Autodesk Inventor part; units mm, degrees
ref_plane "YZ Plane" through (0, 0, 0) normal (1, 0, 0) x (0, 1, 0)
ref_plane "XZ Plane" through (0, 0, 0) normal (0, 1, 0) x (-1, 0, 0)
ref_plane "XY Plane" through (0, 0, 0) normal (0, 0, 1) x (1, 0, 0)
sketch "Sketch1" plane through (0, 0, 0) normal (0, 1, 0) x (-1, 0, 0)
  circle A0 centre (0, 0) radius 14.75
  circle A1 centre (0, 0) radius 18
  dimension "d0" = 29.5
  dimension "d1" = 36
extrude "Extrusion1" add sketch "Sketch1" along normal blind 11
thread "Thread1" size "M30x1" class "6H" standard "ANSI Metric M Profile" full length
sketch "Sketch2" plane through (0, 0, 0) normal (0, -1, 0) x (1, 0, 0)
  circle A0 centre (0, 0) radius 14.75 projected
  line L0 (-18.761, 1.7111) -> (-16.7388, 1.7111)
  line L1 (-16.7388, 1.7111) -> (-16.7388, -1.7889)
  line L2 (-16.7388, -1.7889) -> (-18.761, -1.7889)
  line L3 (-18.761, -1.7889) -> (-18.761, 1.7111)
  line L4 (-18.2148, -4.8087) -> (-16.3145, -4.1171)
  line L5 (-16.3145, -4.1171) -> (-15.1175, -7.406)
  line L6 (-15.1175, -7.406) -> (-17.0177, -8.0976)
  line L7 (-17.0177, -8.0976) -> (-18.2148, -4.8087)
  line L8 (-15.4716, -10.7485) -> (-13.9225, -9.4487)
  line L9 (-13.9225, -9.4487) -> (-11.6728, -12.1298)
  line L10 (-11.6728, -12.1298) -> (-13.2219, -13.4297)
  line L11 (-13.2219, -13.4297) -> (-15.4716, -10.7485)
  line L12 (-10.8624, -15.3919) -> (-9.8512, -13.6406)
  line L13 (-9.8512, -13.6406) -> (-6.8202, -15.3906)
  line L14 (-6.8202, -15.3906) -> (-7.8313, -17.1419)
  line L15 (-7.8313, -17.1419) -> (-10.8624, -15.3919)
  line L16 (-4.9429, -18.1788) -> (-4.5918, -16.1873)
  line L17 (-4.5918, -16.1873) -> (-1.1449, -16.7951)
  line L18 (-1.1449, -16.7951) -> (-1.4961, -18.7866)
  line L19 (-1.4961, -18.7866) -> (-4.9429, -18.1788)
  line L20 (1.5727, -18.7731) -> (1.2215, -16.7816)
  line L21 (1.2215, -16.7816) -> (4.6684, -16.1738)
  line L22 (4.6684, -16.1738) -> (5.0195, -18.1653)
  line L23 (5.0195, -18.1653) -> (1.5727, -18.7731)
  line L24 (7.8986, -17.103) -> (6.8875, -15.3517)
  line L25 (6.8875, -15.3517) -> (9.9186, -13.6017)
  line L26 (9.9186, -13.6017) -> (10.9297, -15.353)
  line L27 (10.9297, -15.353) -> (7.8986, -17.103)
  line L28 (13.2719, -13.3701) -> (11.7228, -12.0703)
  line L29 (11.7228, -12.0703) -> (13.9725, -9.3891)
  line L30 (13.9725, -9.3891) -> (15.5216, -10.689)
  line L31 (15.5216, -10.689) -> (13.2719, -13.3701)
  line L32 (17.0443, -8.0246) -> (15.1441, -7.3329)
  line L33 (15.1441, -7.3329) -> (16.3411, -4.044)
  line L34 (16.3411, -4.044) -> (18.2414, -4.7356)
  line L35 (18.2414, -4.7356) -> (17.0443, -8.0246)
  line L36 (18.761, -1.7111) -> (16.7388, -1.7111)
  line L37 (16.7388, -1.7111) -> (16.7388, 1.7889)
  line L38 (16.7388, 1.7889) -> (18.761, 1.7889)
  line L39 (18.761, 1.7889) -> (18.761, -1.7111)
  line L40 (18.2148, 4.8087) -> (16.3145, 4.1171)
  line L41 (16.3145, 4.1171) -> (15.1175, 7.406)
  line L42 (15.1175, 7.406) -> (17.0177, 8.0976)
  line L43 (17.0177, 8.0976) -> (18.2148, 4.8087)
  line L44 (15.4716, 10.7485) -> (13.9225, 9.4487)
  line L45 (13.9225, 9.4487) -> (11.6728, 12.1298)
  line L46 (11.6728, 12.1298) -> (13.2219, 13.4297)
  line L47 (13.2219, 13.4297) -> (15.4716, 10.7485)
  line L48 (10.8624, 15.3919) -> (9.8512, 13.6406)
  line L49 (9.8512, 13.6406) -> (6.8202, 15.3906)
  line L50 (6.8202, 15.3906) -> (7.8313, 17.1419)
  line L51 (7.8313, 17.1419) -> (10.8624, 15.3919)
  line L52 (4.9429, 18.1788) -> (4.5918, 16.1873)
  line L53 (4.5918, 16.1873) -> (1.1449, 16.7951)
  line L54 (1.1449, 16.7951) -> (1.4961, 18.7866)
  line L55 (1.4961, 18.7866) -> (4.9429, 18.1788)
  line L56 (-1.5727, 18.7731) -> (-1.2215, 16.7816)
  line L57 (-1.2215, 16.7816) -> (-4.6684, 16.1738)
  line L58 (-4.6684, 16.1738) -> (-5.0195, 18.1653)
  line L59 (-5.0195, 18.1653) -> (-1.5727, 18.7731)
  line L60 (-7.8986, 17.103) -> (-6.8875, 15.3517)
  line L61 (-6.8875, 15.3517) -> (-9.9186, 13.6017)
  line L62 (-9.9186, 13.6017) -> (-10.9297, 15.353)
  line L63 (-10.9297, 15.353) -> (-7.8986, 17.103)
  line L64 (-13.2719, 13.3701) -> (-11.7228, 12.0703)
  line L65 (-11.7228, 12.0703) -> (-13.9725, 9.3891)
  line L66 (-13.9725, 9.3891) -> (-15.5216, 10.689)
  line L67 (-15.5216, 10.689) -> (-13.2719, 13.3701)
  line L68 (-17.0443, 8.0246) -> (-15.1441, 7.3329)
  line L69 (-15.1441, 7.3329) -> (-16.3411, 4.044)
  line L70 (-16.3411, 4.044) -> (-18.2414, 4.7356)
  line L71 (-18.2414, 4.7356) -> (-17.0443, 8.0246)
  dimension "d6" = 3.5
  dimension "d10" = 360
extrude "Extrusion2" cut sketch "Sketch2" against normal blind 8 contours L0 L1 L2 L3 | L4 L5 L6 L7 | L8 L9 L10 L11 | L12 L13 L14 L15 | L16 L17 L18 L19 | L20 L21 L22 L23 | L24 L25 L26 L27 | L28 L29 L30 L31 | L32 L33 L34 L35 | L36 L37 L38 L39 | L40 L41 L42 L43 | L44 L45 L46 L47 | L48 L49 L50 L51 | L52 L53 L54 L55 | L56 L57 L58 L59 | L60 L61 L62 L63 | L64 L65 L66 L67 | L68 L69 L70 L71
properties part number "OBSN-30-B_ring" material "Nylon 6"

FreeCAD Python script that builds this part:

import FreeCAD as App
import Part
import Sketcher
from FreeCAD import Vector
Q = App.Units.Quantity


def add_polygon(sketch, points):
    """Adds a closed chain of lines whose ends are joined by coincident constraints."""
    first, n = sketch.GeometryCount, len(points)
    for a, b in zip(points, points[1:] + points[:1]):
        sketch.addGeometry(Part.LineSegment(App.Vector(*a, 0), App.Vector(*b, 0)), False)
    for i in range(n):
        sketch.addConstraint(Sketcher.Constraint("Coincident", first + i, 2, first + (i + 1) % n, 1))

doc = App.newDocument("Part")
body = doc.addObject("PartDesign::Body", "Body")

# Sketch on XZ plane
sketch1 = doc.addObject("Sketcher::SketchObject", "Sketch")
body.addObject(sketch1)
sketch1.AttachmentSupport = (doc.XZ_Plane, [""])
sketch1.MapMode = "FlatFace"
sketch1.addGeometry([
    Part.Circle(Vector(0, 0, 0), Vector(0, 0, 1), 18),
    Part.Circle(Vector(0, 0, 0), Vector(0, 0, 1), 14.75),
], False)
sketch1.addConstraint([
    Sketcher.Constraint("Coincident", 0, 3, -1, 1),
    Sketcher.Constraint("Coincident", 1, 3, -1, 1),
    Sketcher.Constraint("Diameter", 0, Q("36 mm")),
    Sketcher.Constraint("Diameter", 1, Q("29.5 mm")),
])
pad1 = doc.addObject("PartDesign::Pad", "Pad")
body.addObject(pad1)
pad1.Profile = sketch1
pad1.Length = 11
pad1.Reversed = True

# Sketch on XZ plane
sketch2 = doc.addObject("Sketcher::SketchObject", "Sketch001")
body.addObject(sketch2)
sketch2.AttachmentSupport = (doc.XZ_Plane, [""])
sketch2.MapMode = "FlatFace"
add_polygon(sketch2, [(-16.7388, 1.7111), (-18.761, 1.7111), (-18.761, -1.7889), (-16.7388, -1.7889)])  # lines 0-3
add_polygon(sketch2, [(-16.3145, -4.1171), (-18.2148, -4.8087), (-17.0177, -8.0976), (-15.1175, -7.406)])  # lines 4-7
add_polygon(sketch2, [(-13.9225, -9.4487), (-15.4716, -10.7485), (-13.2219, -13.4297), (-11.6728, -12.1298)])  # lines 8-11
add_polygon(sketch2, [(-9.8512, -13.6406), (-10.8624, -15.3919), (-7.8313, -17.1419), (-6.8202, -15.3906)])  # lines 12-15
add_polygon(sketch2, [(-4.5918, -16.1873), (-4.9429, -18.1788), (-1.4961, -18.7866), (-1.1449, -16.7951)])  # lines 16-19
add_polygon(sketch2, [(1.2215, -16.7816), (1.5727, -18.7731), (5.0195, -18.1653), (4.6684, -16.1738)])  # lines 20-23
add_polygon(sketch2, [(6.8875, -15.3517), (7.8986, -17.103), (10.9297, -15.353), (9.9186, -13.6017)])  # lines 24-27
add_polygon(sketch2, [(11.7228, -12.0703), (13.2719, -13.3701), (15.5216, -10.689), (13.9725, -9.3891)])  # lines 28-31
add_polygon(sketch2, [(15.1441, -7.3329), (17.0443, -8.0246), (18.2414, -4.7356), (16.3411, -4.044)])  # lines 32-35
add_polygon(sketch2, [(16.7388, -1.7111), (18.761, -1.7111), (18.761, 1.7889), (16.7388, 1.7889)])  # lines 36-39
add_polygon(sketch2, [(16.3145, 4.1171), (18.2148, 4.8087), (17.0177, 8.0976), (15.1175, 7.406)])  # lines 40-43
add_polygon(sketch2, [(13.9225, 9.4487), (15.4716, 10.7485), (13.2219, 13.4297), (11.6728, 12.1298)])  # lines 44-47
add_polygon(sketch2, [(9.8512, 13.6406), (10.8624, 15.3919), (7.8313, 17.1419), (6.8202, 15.3906)])  # lines 48-51
add_polygon(sketch2, [(4.5918, 16.1873), (4.9429, 18.1788), (1.4961, 18.7866), (1.1449, 16.7951)])  # lines 52-55
add_polygon(sketch2, [(-1.2215, 16.7816), (-1.5727, 18.7731), (-5.0195, 18.1653), (-4.6684, 16.1738)])  # lines 56-59
add_polygon(sketch2, [(-6.8875, 15.3517), (-7.8986, 17.103), (-10.9297, 15.353), (-9.9186, 13.6017)])  # lines 60-63
add_polygon(sketch2, [(-11.7228, 12.0703), (-13.2719, 13.3701), (-15.5216, 10.689), (-13.9725, 9.3891)])  # lines 64-67
add_polygon(sketch2, [(-15.1441, 7.3329), (-17.0443, 8.0246), (-18.2414, 4.7356), (-16.3411, 4.044)])  # lines 68-71
sketch2.addConstraint([
    Sketcher.Constraint("Horizontal", 0),
    Sketcher.Constraint("Vertical", 1),
    Sketcher.Constraint("Horizontal", 2),
    Sketcher.Constraint("Vertical", 3),
    Sketcher.Constraint("Horizontal", 36),
    Sketcher.Constraint("Vertical", 37),
    Sketcher.Constraint("Horizontal", 38),
    Sketcher.Constraint("Vertical", 39),
    Sketcher.Constraint("Symmetric", 0, 2, 36, 2, -1, 1),
    Sketcher.Constraint("Symmetric", 2, 2, 38, 2, -1, 1),
    Sketcher.Constraint("Symmetric", 4, 2, 40, 2, -1, 1),
    Sketcher.Constraint("Symmetric", 5, 2, 41, 2, -1, 1),
    Sketcher.Constraint("Symmetric", 6, 2, 42, 2, -1, 1),
    Sketcher.Constraint("Symmetric", 7, 2, 43, 2, -1, 1),
    Sketcher.Constraint("Symmetric", 8, 2, 44, 2, -1, 1),
    Sketcher.Constraint("Symmetric", 9, 2, 45, 2, -1, 1),
    Sketcher.Constraint("Symmetric", 10, 2, 46, 2, -1, 1),
    Sketcher.Constraint("Symmetric", 11, 2, 47, 2, -1, 1),
    Sketcher.Constraint("Symmetric", 12, 2, 48, 2, -1, 1),
    Sketcher.Constraint("Symmetric", 13, 2, 49, 2, -1, 1),
    Sketcher.Constraint("Symmetric", 14, 2, 50, 2, -1, 1),
    Sketcher.Constraint("Symmetric", 15, 2, 51, 2, -1, 1),
    Sketcher.Constraint("Symmetric", 16, 2, 52, 2, -1, 1),
    Sketcher.Constraint("Symmetric", 17, 2, 53, 2, -1, 1),
    Sketcher.Constraint("Symmetric", 18, 2, 54, 2, -1, 1),
    Sketcher.Constraint("Symmetric", 19, 2, 55, 2, -1, 1),
    Sketcher.Constraint("Symmetric", 20, 2, 56, 2, -1, 1),
    Sketcher.Constraint("Symmetric", 21, 2, 57, 2, -1, 1),
    Sketcher.Constraint("Symmetric", 22, 2, 58, 2, -1, 1),
    Sketcher.Constraint("Symmetric", 23, 2, 59, 2, -1, 1),
    Sketcher.Constraint("Symmetric", 24, 2, 60, 2, -1, 1),
    Sketcher.Constraint("Symmetric", 25, 2, 61, 2, -1, 1),
    Sketcher.Constraint("Symmetric", 26, 2, 62, 2, -1, 1),
    Sketcher.Constraint("Symmetric", 27, 2, 63, 2, -1, 1),
    Sketcher.Constraint("Symmetric", 28, 2, 64, 2, -1, 1),
    Sketcher.Constraint("Symmetric", 29, 2, 65, 2, -1, 1),
    Sketcher.Constraint("Symmetric", 30, 2, 66, 2, -1, 1),
    Sketcher.Constraint("Symmetric", 31, 2, 67, 2, -1, 1),
    Sketcher.Constraint("Symmetric", 32, 2, 68, 2, -1, 1),
    Sketcher.Constraint("Symmetric", 33, 2, 69, 2, -1, 1),
    Sketcher.Constraint("Symmetric", 34, 2, 70, 2, -1, 1),
    Sketcher.Constraint("Symmetric", 35, 2, 71, 2, -1, 1),
    Sketcher.Constraint("Perpendicular", 4, 5),
    Sketcher.Constraint("Perpendicular", 5, 6),
    Sketcher.Constraint("Perpendicular", 6, 7),
    Sketcher.Constraint("Perpendicular", 8, 9),
    Sketcher.Constraint("Perpendicular", 9, 10),
    Sketcher.Constraint("Perpendicular", 10, 11),
    Sketcher.Constraint("Perpendicular", 12, 13),
    Sketcher.Constraint("Perpendicular", 13, 14),
    Sketcher.Constraint("Perpendicular", 14, 15),
    Sketcher.Constraint("Perpendicular", 16, 17),
    Sketcher.Constraint("Perpendicular", 17, 18),
    Sketcher.Constraint("Perpendicular", 18, 19),
    Sketcher.Constraint("Perpendicular", 20, 21),
    Sketcher.Constraint("Perpendicular", 21, 22),
    Sketcher.Constraint("Perpendicular", 22, 23),
    Sketcher.Constraint("Perpendicular", 24, 25),
    Sketcher.Constraint("Perpendicular", 25, 26),
    Sketcher.Constraint("Perpendicular", 26, 27),
    Sketcher.Constraint("Perpendicular", 28, 29),
    Sketcher.Constraint("Perpendicular", 29, 30),
    Sketcher.Constraint("Perpendicular", 30, 31),
    Sketcher.Constraint("Perpendicular", 32, 33),
    Sketcher.Constraint("Perpendicular", 33, 34),
    Sketcher.Constraint("Perpendicular", 34, 35),
    Sketcher.Constraint("Equal", 6, 8),
    Sketcher.Constraint("Equal", 7, 9),
    Sketcher.Constraint("Equal", 10, 12),
    Sketcher.Constraint("Equal", 11, 13),
    Sketcher.Constraint("Equal", 14, 16),
    Sketcher.Constraint("Equal", 15, 17),
    Sketcher.Constraint("Equal", 18, 20),
    Sketcher.Constraint("Equal", 19, 21),
    Sketcher.Constraint("Equal", 22, 24),
    Sketcher.Constraint("Equal", 23, 25),
    Sketcher.Constraint("Equal", 26, 28),
    Sketcher.Constraint("Equal", 27, 29),
    Sketcher.Constraint("Equal", 30, 32),
    Sketcher.Constraint("Equal", 31, 33),
    Sketcher.Constraint("DistanceY", 1, 2, 1, 1, Q("3.5 mm")),
    Sketcher.Constraint("Distance", 5, Q("3.5 mm")),
    Sketcher.Constraint("Angle", 5, Q("-69.9994 deg")),
    Sketcher.Constraint("Angle", 8, Q("-140.001 deg")),
    Sketcher.Constraint("Angle", 13, Q("-30 deg")),
    Sketcher.Constraint("Angle", 17, Q("-10.0006 deg")),
    Sketcher.Constraint("Angle", 21, Q("10.0006 deg")),
    Sketcher.Constraint("Angle", 24, Q("-60.0003 deg")),
    Sketcher.Constraint("Angle", 28, Q("-39.999 deg")),
    Sketcher.Constraint("Angle", 33, Q("70 deg")),
    Sketcher.Constraint("DistanceY", 28, 2, -1, 1, Q("13.37 mm")),
    Sketcher.Constraint("DistanceX", 0, 2, 0, 1, Q("2.0222 mm")),
    Sketcher.Constraint("DistanceX", 0, 2, -1, 1, Q("18.761 mm")),
    Sketcher.Constraint("DistanceY", -1, 1, 0, 2, Q("1.711 mm")),
    Sketcher.Constraint("DistanceY", 6, 2, -1, 1, Q("7.406 mm")),
    Sketcher.Constraint("DistanceX", 9, 2, -1, 1, Q("13.222 mm")),
    Sketcher.Constraint("DistanceY", 12, 2, -1, 1, Q("15.392 mm")),
    Sketcher.Constraint("DistanceX", 16, 2, -1, 1, Q("4.943 mm")),
    Sketcher.Constraint("DistanceX", 18, 2, -1, 1, Q("1.145 mm")),
    Sketcher.Constraint("DistanceY", 18, 2, -1, 1, Q("16.795 mm")),
    Sketcher.Constraint("DistanceY", 20, 2, -1, 1, Q("18.773 mm")),
    Sketcher.Constraint("DistanceY", 24, 2, -1, 1, Q("17.103 mm")),
    Sketcher.Constraint("DistanceX", -1, 1, 28, 2, Q("13.272 mm")),
    Sketcher.Constraint("DistanceX", -1, 1, 34, 2, Q("16.341 mm")),
    Sketcher.Constraint("DistanceY", 34, 2, -1, 1, Q("4.044 mm")),
    Sketcher.Constraint("DistanceX", 4, 2, -1, 1, Q("18.2148 mm")),
    Sketcher.Constraint("DistanceY", 8, 2, -1, 1, Q("10.7485 mm")),
    Sketcher.Constraint("DistanceX", 12, 2, -1, 1, Q("10.8624 mm")),
    Sketcher.Constraint("DistanceX", -1, 1, 20, 2, Q("1.5727 mm")),
    Sketcher.Constraint("DistanceX", -1, 1, 24, 2, Q("7.8986 mm")),
])
pocket1 = doc.addObject("PartDesign::Pocket", "Pocket")
body.addObject(pocket1)
pocket1.Profile = sketch2
pocket1.Length = 8

doc.recompute()
